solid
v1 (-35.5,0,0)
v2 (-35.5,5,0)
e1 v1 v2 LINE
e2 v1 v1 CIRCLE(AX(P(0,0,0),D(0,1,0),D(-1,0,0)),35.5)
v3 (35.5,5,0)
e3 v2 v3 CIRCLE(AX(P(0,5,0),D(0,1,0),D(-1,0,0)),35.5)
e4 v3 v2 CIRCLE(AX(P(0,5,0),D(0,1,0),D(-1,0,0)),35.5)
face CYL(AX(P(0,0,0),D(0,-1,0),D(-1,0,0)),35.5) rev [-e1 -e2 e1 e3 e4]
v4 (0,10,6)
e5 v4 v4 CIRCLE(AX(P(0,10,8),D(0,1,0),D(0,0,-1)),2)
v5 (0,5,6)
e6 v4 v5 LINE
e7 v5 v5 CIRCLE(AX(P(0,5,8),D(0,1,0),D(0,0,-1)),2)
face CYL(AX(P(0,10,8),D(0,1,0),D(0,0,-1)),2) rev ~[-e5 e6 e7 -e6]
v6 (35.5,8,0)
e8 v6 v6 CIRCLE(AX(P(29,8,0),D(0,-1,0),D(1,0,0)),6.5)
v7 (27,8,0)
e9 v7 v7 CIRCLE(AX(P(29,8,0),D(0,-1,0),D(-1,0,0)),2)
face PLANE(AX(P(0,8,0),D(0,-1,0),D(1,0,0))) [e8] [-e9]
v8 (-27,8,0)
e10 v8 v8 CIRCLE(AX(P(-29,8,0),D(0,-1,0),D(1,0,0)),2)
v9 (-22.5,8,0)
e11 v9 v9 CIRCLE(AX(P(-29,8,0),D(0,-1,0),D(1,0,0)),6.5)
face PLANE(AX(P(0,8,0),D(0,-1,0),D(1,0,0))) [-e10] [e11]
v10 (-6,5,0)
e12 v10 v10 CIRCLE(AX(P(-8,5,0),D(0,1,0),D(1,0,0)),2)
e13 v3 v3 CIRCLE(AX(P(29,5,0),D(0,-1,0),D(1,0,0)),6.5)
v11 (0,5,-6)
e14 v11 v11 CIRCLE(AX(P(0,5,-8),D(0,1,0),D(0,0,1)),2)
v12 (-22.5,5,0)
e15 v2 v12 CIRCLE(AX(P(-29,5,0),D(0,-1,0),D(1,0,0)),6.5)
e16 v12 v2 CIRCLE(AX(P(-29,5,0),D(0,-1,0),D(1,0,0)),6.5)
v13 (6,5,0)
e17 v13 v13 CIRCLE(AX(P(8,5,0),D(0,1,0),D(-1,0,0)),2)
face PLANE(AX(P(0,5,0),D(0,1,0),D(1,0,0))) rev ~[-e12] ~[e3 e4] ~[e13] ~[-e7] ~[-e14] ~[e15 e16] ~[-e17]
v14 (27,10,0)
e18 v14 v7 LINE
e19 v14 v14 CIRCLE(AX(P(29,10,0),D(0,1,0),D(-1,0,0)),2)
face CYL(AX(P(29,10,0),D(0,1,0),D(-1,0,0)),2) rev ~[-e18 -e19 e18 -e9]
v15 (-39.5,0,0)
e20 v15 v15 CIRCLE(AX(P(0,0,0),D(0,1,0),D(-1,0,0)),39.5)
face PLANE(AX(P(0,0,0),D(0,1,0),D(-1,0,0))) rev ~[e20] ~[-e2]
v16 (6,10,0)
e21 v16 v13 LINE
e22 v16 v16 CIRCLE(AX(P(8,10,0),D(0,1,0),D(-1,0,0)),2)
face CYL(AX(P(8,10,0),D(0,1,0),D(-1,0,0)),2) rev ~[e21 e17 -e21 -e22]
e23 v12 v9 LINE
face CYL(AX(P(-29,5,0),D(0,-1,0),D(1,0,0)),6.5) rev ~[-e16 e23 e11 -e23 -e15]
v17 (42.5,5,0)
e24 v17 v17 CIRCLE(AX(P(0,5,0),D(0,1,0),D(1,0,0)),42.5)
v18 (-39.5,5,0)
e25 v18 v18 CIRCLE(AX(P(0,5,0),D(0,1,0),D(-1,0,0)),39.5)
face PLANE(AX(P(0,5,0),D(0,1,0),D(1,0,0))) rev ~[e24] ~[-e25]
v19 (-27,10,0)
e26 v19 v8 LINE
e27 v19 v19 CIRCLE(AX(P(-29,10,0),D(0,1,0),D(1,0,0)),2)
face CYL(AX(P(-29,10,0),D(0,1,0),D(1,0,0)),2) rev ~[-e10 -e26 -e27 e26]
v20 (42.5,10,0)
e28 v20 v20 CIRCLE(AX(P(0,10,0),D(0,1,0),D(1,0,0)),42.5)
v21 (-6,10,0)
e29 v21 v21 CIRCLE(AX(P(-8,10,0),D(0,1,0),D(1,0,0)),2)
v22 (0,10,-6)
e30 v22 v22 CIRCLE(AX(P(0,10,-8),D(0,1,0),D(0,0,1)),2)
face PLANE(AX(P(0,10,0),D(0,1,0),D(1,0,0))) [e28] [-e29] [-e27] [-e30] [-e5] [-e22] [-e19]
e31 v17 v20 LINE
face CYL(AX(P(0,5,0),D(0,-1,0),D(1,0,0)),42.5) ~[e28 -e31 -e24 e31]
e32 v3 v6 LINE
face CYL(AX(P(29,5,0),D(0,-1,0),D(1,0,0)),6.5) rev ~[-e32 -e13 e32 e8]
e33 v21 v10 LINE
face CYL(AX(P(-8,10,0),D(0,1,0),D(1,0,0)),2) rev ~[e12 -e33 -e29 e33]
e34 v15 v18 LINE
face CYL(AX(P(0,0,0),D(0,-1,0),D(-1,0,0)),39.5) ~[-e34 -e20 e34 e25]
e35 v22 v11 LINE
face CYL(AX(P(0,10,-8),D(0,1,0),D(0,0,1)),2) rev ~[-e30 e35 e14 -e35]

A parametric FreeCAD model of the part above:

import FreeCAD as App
import Part
import Sketcher

V = App.Vector
Q = App.Units.Quantity

doc = App.newDocument("Part")
body = doc.addObject("PartDesign::Body", "Body")

# Sketch on XZ plane
sketch1 = body.newObject("Sketcher::SketchObject", "Sketch")
sketch1.AttachmentSupport = (doc.getObject("XZ_Plane"), [""])
sketch1.MapMode = "FlatFace"
sketch1.addGeometry([
    Part.Circle(V(0, 0, 0), V(0, 0, 1), 40),
    Part.Circle(V(0, 0, 0), V(0, 0, 1), 36),
], False)
sketch1.addConstraint([
    Sketcher.Constraint("Coincident", 0, 3, -1, 1),
    Sketcher.Constraint("Coincident", 1, 3, -1, 1),
    Sketcher.Constraint("Diameter", 0, Q("79 mm")),
    Sketcher.Constraint("Diameter", 1, Q("71 mm")),
])
pad1 = body.newObject("PartDesign::Pad", "Pad")
pad1.Profile = sketch1
pad1.Length = 5
pad1.Reversed = True

# Sketch on XZ plane
sketch2 = body.newObject("Sketcher::SketchObject", "Sketch001")
sketch2.AttachmentSupport = (doc.getObject("XZ_Plane"), [""])
sketch2.MapMode = "FlatFace"
sketch2.AttachmentOffset = App.Placement(V(0, 0, -5), App.Rotation())
sketch2.addGeometry(Part.Circle(V(0, 0, 0), V(0, 0, 1), 42), False)
sketch2.addConstraint([
    Sketcher.Constraint("Coincident", 0, 3, -1, 1),
    Sketcher.Constraint("Diameter", 0, Q("85 mm")),
])
pad2 = body.newObject("PartDesign::Pad", "Pad001")
pad2.Profile = sketch2
pad2.Length = 5
pad2.Reversed = True

# Sketch on XZ plane
sketch3 = body.newObject("Sketcher::SketchObject", "Sketch002")
sketch3.AttachmentSupport = (doc.getObject("XZ_Plane"), [""])
sketch3.MapMode = "FlatFace"
sketch3.AttachmentOffset = App.Placement(V(0, 0, -10), App.Rotation())
sketch3.addGeometry(Part.Circle(V(-8, 0, 0), V(0, 0, 1), 2), False)
sketch3.addConstraint([
    Sketcher.Constraint("PointOnObject", 0, 3, -1),
    Sketcher.Constraint("Diameter", 0, Q("4 mm")),
    Sketcher.Constraint("DistanceX", 0, 3, -1, 1, Q("8 mm")),
])
pocket1 = body.newObject("PartDesign::Pocket", "Pocket")
pocket1.Profile = sketch3
pocket1.Length = 5
pocket1.Reversed = True
doc.recompute()

polarpattern = body.newObject("PartDesign::PolarPattern", "PolarPattern")
polarpattern.Originals = [pocket1]
polarpattern.Axis = (doc.getObject("Y_Axis"), [""])
polarpattern.Angle = 360
polarpattern.Occurrences = 4
body.Tip = polarpattern

# Sketch on XZ plane
sketch4 = body.newObject("Sketcher::SketchObject", "Sketch003")
sketch4.AttachmentSupport = (doc.getObject("XZ_Plane"), [""])
sketch4.MapMode = "FlatFace"
sketch4.AttachmentOffset = App.Placement(V(0, 0, -10), App.Rotation())
sketch4.addGeometry(Part.Circle(V(-29, 0, 0), V(0, 0, 1), 2), False)
sketch4.addConstraint([
    Sketcher.Constraint("PointOnObject", 0, 3, -1),
    Sketcher.Constraint("Diameter", 0, Q("4 mm")),
    Sketcher.Constraint("DistanceX", 0, 3, -1, 1, Q("29 mm")),
])
pocket2 = body.newObject("PartDesign::Pocket", "Pocket001")
pocket2.Profile = sketch4
pocket2.Length = 10
pocket2.Reversed = True
doc.recompute()

polarpattern2 = body.newObject("PartDesign::PolarPattern", "PolarPattern001")
polarpattern2.Originals = [pocket2]
polarpattern2.Axis = (doc.getObject("Y_Axis"), [""])
polarpattern2.Angle = 360
polarpattern2.Occurrences = 2
body.Tip = polarpattern2

# Sketch on XZ plane
sketch5 = body.newObject("Sketcher::SketchObject", "Sketch004")
sketch5.AttachmentSupport = (doc.getObject("XZ_Plane"), [""])
sketch5.MapMode = "FlatFace"
sketch5.AttachmentOffset = App.Placement(V(0, 0, -5), App.Rotation())
sketch5.addGeometry([
    Part.Circle(V(29, 0, 0), V(0, 0, 1), 6.5),
    Part.Circle(V(29, 0, 0), V(0, 0, 1), 2),
    Part.Circle(V(-29, 0, 0), V(0, 0, 1), 6.5),
    Part.Circle(V(-29, 0, 0), V(0, 0, 1), 2),
], False)
sketch5.addConstraint([
    Sketcher.Constraint("Coincident", 1, 3, 0, 3),
    Sketcher.Constraint("Coincident", 3, 3, 2, 3),
    Sketcher.Constraint("Equal", 0, 2),
    Sketcher.Constraint("Equal", 1, 3),
    Sketcher.Constraint("Symmetric", 0, 3, 2, 3, -1, 1),
    Sketcher.Constraint("PointOnObject", 0, 3, -1),
    Sketcher.Constraint("Diameter", 0, Q("13 mm")),
    Sketcher.Constraint("Diameter", 1, Q("4 mm")),
    Sketcher.Constraint("DistanceX", -1, 1, 0, 3, Q("29 mm")),
])
pocket3 = body.newObject("PartDesign::Pocket", "Pocket002")
pocket3.Profile = sketch5
pocket3.Length = 3

doc.recompute()
